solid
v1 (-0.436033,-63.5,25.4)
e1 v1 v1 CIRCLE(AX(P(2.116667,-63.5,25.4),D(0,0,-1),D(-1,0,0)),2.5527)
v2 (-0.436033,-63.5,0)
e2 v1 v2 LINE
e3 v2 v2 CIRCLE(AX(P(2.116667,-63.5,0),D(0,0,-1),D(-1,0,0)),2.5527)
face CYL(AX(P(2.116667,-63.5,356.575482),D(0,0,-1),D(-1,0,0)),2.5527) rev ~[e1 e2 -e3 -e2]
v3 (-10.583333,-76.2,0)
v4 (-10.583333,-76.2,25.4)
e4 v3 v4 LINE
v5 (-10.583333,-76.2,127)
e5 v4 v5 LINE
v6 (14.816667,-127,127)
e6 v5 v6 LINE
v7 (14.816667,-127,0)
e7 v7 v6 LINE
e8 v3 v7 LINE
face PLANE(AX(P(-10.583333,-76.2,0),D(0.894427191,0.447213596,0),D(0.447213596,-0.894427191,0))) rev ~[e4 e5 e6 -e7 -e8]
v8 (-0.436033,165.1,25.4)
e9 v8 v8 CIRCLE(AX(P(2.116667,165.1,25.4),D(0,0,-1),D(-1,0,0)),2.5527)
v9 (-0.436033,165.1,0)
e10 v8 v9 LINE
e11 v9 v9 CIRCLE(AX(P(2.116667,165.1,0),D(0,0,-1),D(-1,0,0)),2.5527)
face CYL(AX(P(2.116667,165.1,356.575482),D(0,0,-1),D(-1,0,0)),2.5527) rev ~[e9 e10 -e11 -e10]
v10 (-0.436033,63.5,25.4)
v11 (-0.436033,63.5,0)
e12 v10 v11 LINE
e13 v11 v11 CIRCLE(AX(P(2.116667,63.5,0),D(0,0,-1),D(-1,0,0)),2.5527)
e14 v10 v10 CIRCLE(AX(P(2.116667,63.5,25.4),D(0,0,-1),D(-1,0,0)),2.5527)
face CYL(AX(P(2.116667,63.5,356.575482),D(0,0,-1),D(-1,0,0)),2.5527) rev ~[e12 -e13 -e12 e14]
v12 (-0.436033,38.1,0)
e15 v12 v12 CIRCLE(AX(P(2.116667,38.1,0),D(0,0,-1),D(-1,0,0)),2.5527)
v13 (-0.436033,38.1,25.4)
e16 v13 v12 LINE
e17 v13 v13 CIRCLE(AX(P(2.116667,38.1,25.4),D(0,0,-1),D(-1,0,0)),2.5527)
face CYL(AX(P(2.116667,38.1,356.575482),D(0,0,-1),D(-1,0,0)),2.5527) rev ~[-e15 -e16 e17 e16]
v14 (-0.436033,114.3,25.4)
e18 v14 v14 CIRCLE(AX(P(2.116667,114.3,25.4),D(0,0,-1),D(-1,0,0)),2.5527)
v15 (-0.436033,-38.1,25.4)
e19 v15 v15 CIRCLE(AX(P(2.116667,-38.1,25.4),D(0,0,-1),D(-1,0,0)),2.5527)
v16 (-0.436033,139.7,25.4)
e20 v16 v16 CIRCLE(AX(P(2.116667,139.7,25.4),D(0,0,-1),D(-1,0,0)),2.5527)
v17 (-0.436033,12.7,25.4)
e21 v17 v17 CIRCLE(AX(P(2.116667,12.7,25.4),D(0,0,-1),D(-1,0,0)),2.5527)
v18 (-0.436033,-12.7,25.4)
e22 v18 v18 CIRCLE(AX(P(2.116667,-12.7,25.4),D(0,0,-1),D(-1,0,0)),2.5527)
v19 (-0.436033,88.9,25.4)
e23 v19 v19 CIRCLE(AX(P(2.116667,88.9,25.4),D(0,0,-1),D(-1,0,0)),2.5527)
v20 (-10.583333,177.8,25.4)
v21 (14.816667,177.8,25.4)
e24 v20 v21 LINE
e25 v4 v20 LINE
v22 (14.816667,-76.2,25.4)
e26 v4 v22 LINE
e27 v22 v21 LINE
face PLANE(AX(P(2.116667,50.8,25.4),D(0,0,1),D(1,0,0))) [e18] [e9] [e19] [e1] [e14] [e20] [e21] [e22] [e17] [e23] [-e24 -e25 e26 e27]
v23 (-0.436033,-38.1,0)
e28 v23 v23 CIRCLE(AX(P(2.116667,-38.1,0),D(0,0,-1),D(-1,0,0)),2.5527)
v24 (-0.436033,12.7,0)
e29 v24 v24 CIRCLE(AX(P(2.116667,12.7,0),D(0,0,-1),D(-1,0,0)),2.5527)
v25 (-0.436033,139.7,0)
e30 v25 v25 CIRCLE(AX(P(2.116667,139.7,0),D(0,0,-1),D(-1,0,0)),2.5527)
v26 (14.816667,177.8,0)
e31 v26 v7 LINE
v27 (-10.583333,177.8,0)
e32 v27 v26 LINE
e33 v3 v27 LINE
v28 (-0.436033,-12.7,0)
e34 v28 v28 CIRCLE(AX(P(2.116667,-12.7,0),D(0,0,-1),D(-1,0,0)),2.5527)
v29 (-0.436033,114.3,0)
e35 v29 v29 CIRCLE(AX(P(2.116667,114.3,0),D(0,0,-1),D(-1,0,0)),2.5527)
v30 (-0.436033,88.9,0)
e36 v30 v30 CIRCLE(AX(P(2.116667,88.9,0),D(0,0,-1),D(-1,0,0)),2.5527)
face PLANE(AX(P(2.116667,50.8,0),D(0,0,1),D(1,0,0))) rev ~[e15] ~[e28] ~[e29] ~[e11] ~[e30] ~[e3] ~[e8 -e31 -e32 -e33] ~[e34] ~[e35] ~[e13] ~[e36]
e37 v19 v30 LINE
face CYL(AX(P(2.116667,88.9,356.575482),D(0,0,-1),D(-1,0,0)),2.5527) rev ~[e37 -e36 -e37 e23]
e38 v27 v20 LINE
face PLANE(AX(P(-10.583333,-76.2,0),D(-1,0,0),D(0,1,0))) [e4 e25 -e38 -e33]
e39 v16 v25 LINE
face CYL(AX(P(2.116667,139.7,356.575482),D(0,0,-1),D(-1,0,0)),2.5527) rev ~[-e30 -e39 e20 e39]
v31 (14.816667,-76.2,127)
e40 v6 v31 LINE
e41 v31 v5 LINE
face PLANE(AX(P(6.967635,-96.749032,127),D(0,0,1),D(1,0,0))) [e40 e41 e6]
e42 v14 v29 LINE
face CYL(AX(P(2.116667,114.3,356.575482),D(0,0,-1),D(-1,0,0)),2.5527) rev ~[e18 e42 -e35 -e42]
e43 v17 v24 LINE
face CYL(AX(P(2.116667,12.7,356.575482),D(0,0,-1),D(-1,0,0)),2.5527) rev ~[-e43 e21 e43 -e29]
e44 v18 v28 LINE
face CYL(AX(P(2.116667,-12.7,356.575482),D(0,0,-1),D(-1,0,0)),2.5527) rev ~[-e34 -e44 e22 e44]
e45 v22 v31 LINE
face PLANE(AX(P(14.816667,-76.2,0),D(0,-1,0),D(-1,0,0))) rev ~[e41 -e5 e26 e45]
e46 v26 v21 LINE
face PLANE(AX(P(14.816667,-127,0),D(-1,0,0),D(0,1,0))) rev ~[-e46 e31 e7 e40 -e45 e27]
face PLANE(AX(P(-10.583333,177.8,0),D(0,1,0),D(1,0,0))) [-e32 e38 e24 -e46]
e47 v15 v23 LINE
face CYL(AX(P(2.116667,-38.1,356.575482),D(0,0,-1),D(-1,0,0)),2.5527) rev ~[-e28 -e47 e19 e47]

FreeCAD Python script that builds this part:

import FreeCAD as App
import Part
import Sketcher
Q = App.Units.Quantity

doc = App.newDocument("Part")
body = doc.addObject("PartDesign::Body", "Body")

# Sketch on XY plane
sketch1 = body.newObject("Sketcher::SketchObject", "Sketch")
sketch1.AttachmentSupport = (doc.getObject("XY_Plane"), [""])
sketch1.MapMode = "FlatFace"
sketch1.addGeometry(Part.LineSegment(App.Vector(15, -76, 0), App.Vector(-11, -76, 0)), False)
sketch1.addGeometry(Part.LineSegment(App.Vector(-11, -76, 0), App.Vector(15, -127, 0)), False)
sketch1.addGeometry(Part.LineSegment(App.Vector(15, -127, 0), App.Vector(15, -76, 0)), False)
sketch1.addConstraint(Sketcher.Constraint("Coincident", 0, 2, 1, 1))
sketch1.addConstraint(Sketcher.Constraint("Coincident", 1, 2, 2, 1))
sketch1.addConstraint(Sketcher.Constraint("Coincident", 2, 2, 0, 1))
sketch1.addConstraint(Sketcher.Constraint("Horizontal", 0))
sketch1.addConstraint(Sketcher.Constraint("Vertical", 2))
sketch1.addConstraint(Sketcher.Constraint("DistanceX", 0, 2, 0, 1, Q("1 in")))
sketch1.addConstraint(Sketcher.Constraint("DistanceY", 2, 1, 2, 2, Q("2 in")))
sketch1.addConstraint(Sketcher.Constraint("DistanceY", 0, 2, -1, 1, Q("3 in")))
sketch1.addConstraint(Sketcher.Constraint("DistanceX", 0, 2, -1, 1, 10.583333))
pad1 = body.newObject("PartDesign::Pad", "Pad")
pad1.Profile = sketch1
pad1.Length = Q("5 in")

# Sketch on XY plane
sketch2 = body.newObject("Sketcher::SketchObject", "Sketch001")
sketch2.AttachmentSupport = (doc.getObject("XY_Plane"), [""])
sketch2.MapMode = "FlatFace"
sketch2.addGeometry(Part.LineSegment(App.Vector(-11, 178, 0), App.Vector(-11, -76, 0)), False)
sketch2.addGeometry(Part.LineSegment(App.Vector(-11, -76, 0), App.Vector(15, -76, 0)), False)
sketch2.addGeometry(Part.LineSegment(App.Vector(15, -76, 0), App.Vector(15, 178, 0)), False)
sketch2.addGeometry(Part.LineSegment(App.Vector(15, 178, 0), App.Vector(-11, 178, 0)), False)
sketch2.addConstraint(Sketcher.Constraint("Coincident", 0, 2, 1, 1))
sketch2.addConstraint(Sketcher.Constraint("Coincident", 1, 2, 2, 1))
sketch2.addConstraint(Sketcher.Constraint("Coincident", 2, 2, 3, 1))
sketch2.addConstraint(Sketcher.Constraint("Coincident", 3, 2, 0, 1))
sketch2.addConstraint(Sketcher.Constraint("Vertical", 0))
sketch2.addConstraint(Sketcher.Constraint("Horizontal", 1))
sketch2.addConstraint(Sketcher.Constraint("Vertical", 2))
sketch2.addConstraint(Sketcher.Constraint("Horizontal", 3))
sketch2.addConstraint(Sketcher.Constraint("DistanceX", 1, 1, 1, 2, Q("1 in")))
sketch2.addConstraint(Sketcher.Constraint("DistanceY", 0, 2, 0, 1, Q("10 in")))
sketch2.addConstraint(Sketcher.Constraint("DistanceY", 0, 2, -1, 1, Q("3 in")))
sketch2.addConstraint(Sketcher.Constraint("DistanceX", 0, 2, -1, 1, 10.583333))
pad2 = body.newObject("PartDesign::Pad", "Pad001")
pad2.Profile = sketch2
pad2.Length = Q("1 in")

# Sketch on XY plane
sketch3 = body.newObject("Sketcher::SketchObject", "Sketch002")
sketch3.AttachmentSupport = (doc.getObject("XY_Plane"), [""])
sketch3.MapMode = "FlatFace"
sketch3.AttachmentOffset = App.Placement(App.Vector(0, 0, 1 * 25.4), App.Rotation())
sketch3.addGeometry(Part.Circle(App.Vector(2.1, -12.7, 0), App.Vector(0, 0, 1), 2.6), False)
sketch3.addGeometry(Part.Circle(App.Vector(2.1, 12.7, 0), App.Vector(0, 0, 1), 2.6), False)
sketch3.addGeometry(Part.Circle(App.Vector(2.1, 38.1, 0), App.Vector(0, 0, 1), 2.6), False)
sketch3.addGeometry(Part.Circle(App.Vector(2.1, 63.5, 0), App.Vector(0, 0, 1), 2.6), False)
sketch3.addGeometry(Part.Circle(App.Vector(2.1, 88.9, 0), App.Vector(0, 0, 1), 2.6), False)
sketch3.addGeometry(Part.Circle(App.Vector(2.1, 114.3, 0), App.Vector(0, 0, 1), 2.6), False)
sketch3.addGeometry(Part.Circle(App.Vector(2.1, 139.7, 0), App.Vector(0, 0, 1), 2.6), False)
sketch3.addGeometry(Part.Circle(App.Vector(2.1, 165.1, 0), App.Vector(0, 0, 1), 2.6), False)
sketch3.addGeometry(Part.Circle(App.Vector(2.1, -38.1, 0), App.Vector(0, 0, 1), 2.6), False)
sketch3.addGeometry(Part.Circle(App.Vector(2.1, -63.5, 0), App.Vector(0, 0, 1), 2.6), False)
sketch3.addConstraint(Sketcher.Constraint("Equal", 0, 1))
sketch3.addConstraint(Sketcher.Constraint("Equal", 1, 2))
sketch3.addConstraint(Sketcher.Constraint("Equal", 2, 3))
sketch3.addConstraint(Sketcher.Constraint("Equal", 3, 4))
sketch3.addConstraint(Sketcher.Constraint("Equal", 4, 5))
sketch3.addConstraint(Sketcher.Constraint("Equal", 5, 6))
sketch3.addConstraint(Sketcher.Constraint("Equal", 6, 7))
sketch3.addConstraint(Sketcher.Constraint("Equal", 7, 8))
sketch3.addConstraint(Sketcher.Constraint("Equal", 8, 9))
sketch3.addConstraint(Sketcher.Constraint("Symmetric", 0, 3, 1, 3, -1))
sketch3.addConstraint(Sketcher.Constraint("Symmetric", 2, 3, 8, 3, -1))
sketch3.addConstraint(Sketcher.Constraint("Symmetric", 3, 3, 9, 3, -1))
sketch3.addConstraint(Sketcher.Constraint("Vertical", 1, 3, 2, 3))
sketch3.addConstraint(Sketcher.Constraint("Vertical", 2, 3, 3, 3))
sketch3.addConstraint(Sketcher.Constraint("Vertical", 3, 3, 4, 3))
sketch3.addConstraint(Sketcher.Constraint("Vertical", 4, 3, 5, 3))
sketch3.addConstraint(Sketcher.Constraint("Vertical", 5, 3, 6, 3))
sketch3.addConstraint(Sketcher.Constraint("Vertical", 6, 3, 7, 3))
sketch3.addConstraint(Sketcher.Constraint("Diameter", 0, Q("0.201 in")))
sketch3.addConstraint(Sketcher.Constraint("DistanceY", 0, 3, 1, 3, Q("1 in")))
sketch3.addConstraint(Sketcher.Constraint("DistanceY", 1, 3, 2, 3, Q("1 in")))
sketch3.addConstraint(Sketcher.Constraint("DistanceY", 2, 3, 3, 3, Q("1 in")))
sketch3.addConstraint(Sketcher.Constraint("DistanceY", 3, 3, 4, 3, Q("1 in")))
sketch3.addConstraint(Sketcher.Constraint("DistanceY", 4, 3, 5, 3, Q("1 in")))
sketch3.addConstraint(Sketcher.Constraint("DistanceY", 5, 3, 6, 3, Q("1 in")))
sketch3.addConstraint(Sketcher.Constraint("DistanceY", 6, 3, 7, 3, Q("1 in")))
sketch3.addConstraint(Sketcher.Constraint("DistanceX", -1, 1, 0, 3, 2.116667))
doc.recompute()
hole = body.newObject("PartDesign::Hole", "Hole")
hole.Profile = sketch3
hole.ThreadType = "None"
hole.Diameter = Q("0.201 in")
hole.DepthType = "ThroughAll"

doc.recompute()
